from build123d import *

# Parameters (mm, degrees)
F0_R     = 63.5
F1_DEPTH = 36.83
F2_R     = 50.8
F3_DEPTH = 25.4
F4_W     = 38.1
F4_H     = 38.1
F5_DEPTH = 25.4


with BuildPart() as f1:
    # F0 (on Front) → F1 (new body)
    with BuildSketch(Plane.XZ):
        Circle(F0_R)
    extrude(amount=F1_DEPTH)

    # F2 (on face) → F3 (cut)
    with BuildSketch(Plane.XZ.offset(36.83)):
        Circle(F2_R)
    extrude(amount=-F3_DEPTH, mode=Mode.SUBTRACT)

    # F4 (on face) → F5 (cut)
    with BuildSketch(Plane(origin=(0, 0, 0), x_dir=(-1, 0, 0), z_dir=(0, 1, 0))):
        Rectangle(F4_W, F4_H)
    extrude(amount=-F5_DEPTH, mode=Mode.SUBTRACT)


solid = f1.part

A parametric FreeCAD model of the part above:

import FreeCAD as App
import Part
import Sketcher
from FreeCAD import Vector
Q = App.Units.Quantity

doc = App.newDocument("Part")
body = doc.addObject("PartDesign::Body", "Body")

# Sketch on XZ plane
sketch1 = doc.addObject("Sketcher::SketchObject", "Sketch")
body.addObject(sketch1)
sketch1.AttachmentSupport = (doc.XZ_Plane, [""])
sketch1.MapMode = "FlatFace"
sketch1.addGeometry(Part.Circle(Vector(0, 0, 0), Vector(0, 0, 1), 63.5), False)
sketch1.addConstraint([
    Sketcher.Constraint("Coincident", 0, 3, -1, 1),
    Sketcher.Constraint("Diameter", 0, Q("5 in")),
])
pad1 = doc.addObject("PartDesign::Pad", "Pad")
body.addObject(pad1)
pad1.Profile = sketch1
pad1.Length = Q("1.45 in")

# Sketch on XZ plane
sketch2 = doc.addObject("Sketcher::SketchObject", "Sketch001")
body.addObject(sketch2)
sketch2.AttachmentSupport = (doc.XZ_Plane, [""])
sketch2.MapMode = "FlatFace"
sketch2.AttachmentOffset = App.Placement(Vector(0, 0, 1.45 * 25.4), App.Rotation())
sketch2.addGeometry(Part.Circle(Vector(0, 0, 0), Vector(0, 0, 1), 50.8), False)
sketch2.addConstraint([
    Sketcher.Constraint("Coincident", 0, 3, -1, 1),
    Sketcher.Constraint("Diameter", 0, Q("4 in")),
])
pocket1 = doc.addObject("PartDesign::Pocket", "Pocket")
body.addObject(pocket1)
pocket1.Profile = sketch2
pocket1.Length = Q("1 in")

# Sketch on XZ plane
sketch3 = doc.addObject("Sketcher::SketchObject", "Sketch002")
body.addObject(sketch3)
sketch3.AttachmentSupport = (doc.XZ_Plane, [""])
sketch3.MapMode = "FlatFace"
sketch3.addGeometry([
    Part.LineSegment(Vector(19.05, 19.05, 0), Vector(19.05, -19.05, 0)),
    Part.LineSegment(Vector(19.05, -19.05, 0), Vector(-19.05, -19.05, 0)),
    Part.LineSegment(Vector(-19.05, -19.05, 0), Vector(-19.05, 19.05, 0)),
    Part.LineSegment(Vector(-19.05, 19.05, 0), Vector(19.05, 19.05, 0)),
], False)
sketch3.addConstraint([
    Sketcher.Constraint("Coincident", 0, 2, 1, 1),
    Sketcher.Constraint("Coincident", 1, 2, 2, 1),
    Sketcher.Constraint("Coincident", 2, 2, 3, 1),
    Sketcher.Constraint("Coincident", 3, 2, 0, 1),
    Sketcher.Constraint("Vertical", 0),
    Sketcher.Constraint("Horizontal", 1),
    Sketcher.Constraint("Vertical", 2),
    Sketcher.Constraint("Horizontal", 3),
    Sketcher.Constraint("Symmetric", 0, 2, 2, 2, -1, 1),
    Sketcher.Constraint("Equal", 3, 0),
    Sketcher.Constraint("DistanceX", 1, 2, 1, 1, Q("1.5 in")),
])
pocket2 = doc.addObject("PartDesign::Pocket", "Pocket001")
body.addObject(pocket2)
pocket2.Profile = sketch3
pocket2.Length = Q("1 in")
pocket2.Reversed = True

doc.recompute()
